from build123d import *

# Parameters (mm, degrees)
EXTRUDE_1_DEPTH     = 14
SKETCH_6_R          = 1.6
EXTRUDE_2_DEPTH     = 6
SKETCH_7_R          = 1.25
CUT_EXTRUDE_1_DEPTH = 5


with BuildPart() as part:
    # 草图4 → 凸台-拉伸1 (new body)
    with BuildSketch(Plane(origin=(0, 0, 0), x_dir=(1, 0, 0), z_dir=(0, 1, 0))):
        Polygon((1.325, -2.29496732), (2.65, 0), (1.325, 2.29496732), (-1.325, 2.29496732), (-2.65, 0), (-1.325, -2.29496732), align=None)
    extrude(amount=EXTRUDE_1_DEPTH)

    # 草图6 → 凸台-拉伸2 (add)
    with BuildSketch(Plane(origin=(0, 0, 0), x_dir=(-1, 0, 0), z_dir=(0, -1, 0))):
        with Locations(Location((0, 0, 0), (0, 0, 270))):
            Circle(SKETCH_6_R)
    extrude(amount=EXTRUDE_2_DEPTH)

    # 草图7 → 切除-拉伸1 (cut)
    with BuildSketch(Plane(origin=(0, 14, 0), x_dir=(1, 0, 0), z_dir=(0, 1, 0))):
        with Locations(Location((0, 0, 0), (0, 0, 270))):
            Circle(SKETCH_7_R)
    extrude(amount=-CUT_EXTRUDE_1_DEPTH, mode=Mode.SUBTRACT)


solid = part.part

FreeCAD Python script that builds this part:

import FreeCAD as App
import Part
import Sketcher
from FreeCAD import Vector
Q = App.Units.Quantity

doc = App.newDocument("Part")
body = doc.addObject("PartDesign::Body", "Body")

sketch1 = body.newObject("Sketcher::SketchObject", "Sketch")
sketch1.AttachmentSupport = (doc.getObject("XZ_Plane"), [""])
sketch1.MapMode = "FlatFace"
sketch1.addGeometry([
    Part.LineSegment(Vector(1.3, 2.3, 0), Vector(2.6, 0, 0)),
    Part.LineSegment(Vector(2.6, 0, 0), Vector(1.3, -2.3, 0)),
    Part.LineSegment(Vector(1.3, -2.3, 0), Vector(-1.3, -2.3, 0)),
    Part.LineSegment(Vector(-1.3, -2.3, 0), Vector(-2.6, 0, 0)),
    Part.LineSegment(Vector(-2.6, 0, 0), Vector(-1.3, 2.3, 0)),
    Part.LineSegment(Vector(-1.3, 2.3, 0), Vector(1.3, 2.3, 0)),
], False)
sketch1.addConstraint([
    Sketcher.Constraint("Coincident", 0, 2, 1, 1),
    Sketcher.Constraint("Coincident", 1, 2, 2, 1),
    Sketcher.Constraint("Coincident", 2, 2, 3, 1),
    Sketcher.Constraint("Coincident", 3, 2, 4, 1),
    Sketcher.Constraint("Coincident", 4, 2, 5, 1),
    Sketcher.Constraint("Coincident", 5, 2, 0, 1),
    Sketcher.Constraint("Horizontal", 2),
    Sketcher.Constraint("Horizontal", 5),
    Sketcher.Constraint("Symmetric", 0, 2, 3, 2, -1, 1),
    Sketcher.Constraint("Symmetric", 1, 2, 4, 2, -1, 1),
    Sketcher.Constraint("PointOnObject", 0, 2, -1),
    Sketcher.Constraint("Parallel", 0, 3),
    Sketcher.Constraint("Vertical", 2, 2, 4, 2),
    Sketcher.Constraint("Angle", 0, Q("-60 deg")),
    Sketcher.Constraint("DistanceX", 2, 2, 2, 1, 2.65),
    Sketcher.Constraint("DistanceX", 3, 2, 0, 2, 5.3),
])
pad1 = body.newObject("PartDesign::Pad", "Pad")
pad1.Profile = sketch1
pad1.Length = 14
pad1.Reversed = True

sketch2 = body.newObject("Sketcher::SketchObject", "Sketch001")
sketch2.AttachmentSupport = (doc.getObject("XZ_Plane"), [""])
sketch2.MapMode = "FlatFace"
sketch2.addGeometry(Part.Circle(Vector(0, 0, 0), Vector(0, 0, 1), 1.6), False)
sketch2.addConstraint([
    Sketcher.Constraint("Coincident", 0, 3, -1, 1),
    Sketcher.Constraint("Diameter", 0, 3.2),
])
pad2 = body.newObject("PartDesign::Pad", "Pad001")
pad2.Profile = sketch2
pad2.Length = 6

sketch3 = body.newObject("Sketcher::SketchObject", "Sketch002")
sketch3.AttachmentSupport = (doc.getObject("XZ_Plane"), [""])
sketch3.MapMode = "FlatFace"
sketch3.AttachmentOffset = App.Placement(Vector(0, 0, -14), App.Rotation())
sketch3.addGeometry(Part.Circle(Vector(0, 0, 0), Vector(0, 0, 1), 1.2), False)
sketch3.addConstraint([
    Sketcher.Constraint("Coincident", 0, 3, -1, 1),
    Sketcher.Constraint("Diameter", 0, 2.5),
])
pocket1 = body.newObject("PartDesign::Pocket", "Pocket")
pocket1.Profile = sketch3
pocket1.Length = 5
pocket1.Reversed = True

doc.recompute()
